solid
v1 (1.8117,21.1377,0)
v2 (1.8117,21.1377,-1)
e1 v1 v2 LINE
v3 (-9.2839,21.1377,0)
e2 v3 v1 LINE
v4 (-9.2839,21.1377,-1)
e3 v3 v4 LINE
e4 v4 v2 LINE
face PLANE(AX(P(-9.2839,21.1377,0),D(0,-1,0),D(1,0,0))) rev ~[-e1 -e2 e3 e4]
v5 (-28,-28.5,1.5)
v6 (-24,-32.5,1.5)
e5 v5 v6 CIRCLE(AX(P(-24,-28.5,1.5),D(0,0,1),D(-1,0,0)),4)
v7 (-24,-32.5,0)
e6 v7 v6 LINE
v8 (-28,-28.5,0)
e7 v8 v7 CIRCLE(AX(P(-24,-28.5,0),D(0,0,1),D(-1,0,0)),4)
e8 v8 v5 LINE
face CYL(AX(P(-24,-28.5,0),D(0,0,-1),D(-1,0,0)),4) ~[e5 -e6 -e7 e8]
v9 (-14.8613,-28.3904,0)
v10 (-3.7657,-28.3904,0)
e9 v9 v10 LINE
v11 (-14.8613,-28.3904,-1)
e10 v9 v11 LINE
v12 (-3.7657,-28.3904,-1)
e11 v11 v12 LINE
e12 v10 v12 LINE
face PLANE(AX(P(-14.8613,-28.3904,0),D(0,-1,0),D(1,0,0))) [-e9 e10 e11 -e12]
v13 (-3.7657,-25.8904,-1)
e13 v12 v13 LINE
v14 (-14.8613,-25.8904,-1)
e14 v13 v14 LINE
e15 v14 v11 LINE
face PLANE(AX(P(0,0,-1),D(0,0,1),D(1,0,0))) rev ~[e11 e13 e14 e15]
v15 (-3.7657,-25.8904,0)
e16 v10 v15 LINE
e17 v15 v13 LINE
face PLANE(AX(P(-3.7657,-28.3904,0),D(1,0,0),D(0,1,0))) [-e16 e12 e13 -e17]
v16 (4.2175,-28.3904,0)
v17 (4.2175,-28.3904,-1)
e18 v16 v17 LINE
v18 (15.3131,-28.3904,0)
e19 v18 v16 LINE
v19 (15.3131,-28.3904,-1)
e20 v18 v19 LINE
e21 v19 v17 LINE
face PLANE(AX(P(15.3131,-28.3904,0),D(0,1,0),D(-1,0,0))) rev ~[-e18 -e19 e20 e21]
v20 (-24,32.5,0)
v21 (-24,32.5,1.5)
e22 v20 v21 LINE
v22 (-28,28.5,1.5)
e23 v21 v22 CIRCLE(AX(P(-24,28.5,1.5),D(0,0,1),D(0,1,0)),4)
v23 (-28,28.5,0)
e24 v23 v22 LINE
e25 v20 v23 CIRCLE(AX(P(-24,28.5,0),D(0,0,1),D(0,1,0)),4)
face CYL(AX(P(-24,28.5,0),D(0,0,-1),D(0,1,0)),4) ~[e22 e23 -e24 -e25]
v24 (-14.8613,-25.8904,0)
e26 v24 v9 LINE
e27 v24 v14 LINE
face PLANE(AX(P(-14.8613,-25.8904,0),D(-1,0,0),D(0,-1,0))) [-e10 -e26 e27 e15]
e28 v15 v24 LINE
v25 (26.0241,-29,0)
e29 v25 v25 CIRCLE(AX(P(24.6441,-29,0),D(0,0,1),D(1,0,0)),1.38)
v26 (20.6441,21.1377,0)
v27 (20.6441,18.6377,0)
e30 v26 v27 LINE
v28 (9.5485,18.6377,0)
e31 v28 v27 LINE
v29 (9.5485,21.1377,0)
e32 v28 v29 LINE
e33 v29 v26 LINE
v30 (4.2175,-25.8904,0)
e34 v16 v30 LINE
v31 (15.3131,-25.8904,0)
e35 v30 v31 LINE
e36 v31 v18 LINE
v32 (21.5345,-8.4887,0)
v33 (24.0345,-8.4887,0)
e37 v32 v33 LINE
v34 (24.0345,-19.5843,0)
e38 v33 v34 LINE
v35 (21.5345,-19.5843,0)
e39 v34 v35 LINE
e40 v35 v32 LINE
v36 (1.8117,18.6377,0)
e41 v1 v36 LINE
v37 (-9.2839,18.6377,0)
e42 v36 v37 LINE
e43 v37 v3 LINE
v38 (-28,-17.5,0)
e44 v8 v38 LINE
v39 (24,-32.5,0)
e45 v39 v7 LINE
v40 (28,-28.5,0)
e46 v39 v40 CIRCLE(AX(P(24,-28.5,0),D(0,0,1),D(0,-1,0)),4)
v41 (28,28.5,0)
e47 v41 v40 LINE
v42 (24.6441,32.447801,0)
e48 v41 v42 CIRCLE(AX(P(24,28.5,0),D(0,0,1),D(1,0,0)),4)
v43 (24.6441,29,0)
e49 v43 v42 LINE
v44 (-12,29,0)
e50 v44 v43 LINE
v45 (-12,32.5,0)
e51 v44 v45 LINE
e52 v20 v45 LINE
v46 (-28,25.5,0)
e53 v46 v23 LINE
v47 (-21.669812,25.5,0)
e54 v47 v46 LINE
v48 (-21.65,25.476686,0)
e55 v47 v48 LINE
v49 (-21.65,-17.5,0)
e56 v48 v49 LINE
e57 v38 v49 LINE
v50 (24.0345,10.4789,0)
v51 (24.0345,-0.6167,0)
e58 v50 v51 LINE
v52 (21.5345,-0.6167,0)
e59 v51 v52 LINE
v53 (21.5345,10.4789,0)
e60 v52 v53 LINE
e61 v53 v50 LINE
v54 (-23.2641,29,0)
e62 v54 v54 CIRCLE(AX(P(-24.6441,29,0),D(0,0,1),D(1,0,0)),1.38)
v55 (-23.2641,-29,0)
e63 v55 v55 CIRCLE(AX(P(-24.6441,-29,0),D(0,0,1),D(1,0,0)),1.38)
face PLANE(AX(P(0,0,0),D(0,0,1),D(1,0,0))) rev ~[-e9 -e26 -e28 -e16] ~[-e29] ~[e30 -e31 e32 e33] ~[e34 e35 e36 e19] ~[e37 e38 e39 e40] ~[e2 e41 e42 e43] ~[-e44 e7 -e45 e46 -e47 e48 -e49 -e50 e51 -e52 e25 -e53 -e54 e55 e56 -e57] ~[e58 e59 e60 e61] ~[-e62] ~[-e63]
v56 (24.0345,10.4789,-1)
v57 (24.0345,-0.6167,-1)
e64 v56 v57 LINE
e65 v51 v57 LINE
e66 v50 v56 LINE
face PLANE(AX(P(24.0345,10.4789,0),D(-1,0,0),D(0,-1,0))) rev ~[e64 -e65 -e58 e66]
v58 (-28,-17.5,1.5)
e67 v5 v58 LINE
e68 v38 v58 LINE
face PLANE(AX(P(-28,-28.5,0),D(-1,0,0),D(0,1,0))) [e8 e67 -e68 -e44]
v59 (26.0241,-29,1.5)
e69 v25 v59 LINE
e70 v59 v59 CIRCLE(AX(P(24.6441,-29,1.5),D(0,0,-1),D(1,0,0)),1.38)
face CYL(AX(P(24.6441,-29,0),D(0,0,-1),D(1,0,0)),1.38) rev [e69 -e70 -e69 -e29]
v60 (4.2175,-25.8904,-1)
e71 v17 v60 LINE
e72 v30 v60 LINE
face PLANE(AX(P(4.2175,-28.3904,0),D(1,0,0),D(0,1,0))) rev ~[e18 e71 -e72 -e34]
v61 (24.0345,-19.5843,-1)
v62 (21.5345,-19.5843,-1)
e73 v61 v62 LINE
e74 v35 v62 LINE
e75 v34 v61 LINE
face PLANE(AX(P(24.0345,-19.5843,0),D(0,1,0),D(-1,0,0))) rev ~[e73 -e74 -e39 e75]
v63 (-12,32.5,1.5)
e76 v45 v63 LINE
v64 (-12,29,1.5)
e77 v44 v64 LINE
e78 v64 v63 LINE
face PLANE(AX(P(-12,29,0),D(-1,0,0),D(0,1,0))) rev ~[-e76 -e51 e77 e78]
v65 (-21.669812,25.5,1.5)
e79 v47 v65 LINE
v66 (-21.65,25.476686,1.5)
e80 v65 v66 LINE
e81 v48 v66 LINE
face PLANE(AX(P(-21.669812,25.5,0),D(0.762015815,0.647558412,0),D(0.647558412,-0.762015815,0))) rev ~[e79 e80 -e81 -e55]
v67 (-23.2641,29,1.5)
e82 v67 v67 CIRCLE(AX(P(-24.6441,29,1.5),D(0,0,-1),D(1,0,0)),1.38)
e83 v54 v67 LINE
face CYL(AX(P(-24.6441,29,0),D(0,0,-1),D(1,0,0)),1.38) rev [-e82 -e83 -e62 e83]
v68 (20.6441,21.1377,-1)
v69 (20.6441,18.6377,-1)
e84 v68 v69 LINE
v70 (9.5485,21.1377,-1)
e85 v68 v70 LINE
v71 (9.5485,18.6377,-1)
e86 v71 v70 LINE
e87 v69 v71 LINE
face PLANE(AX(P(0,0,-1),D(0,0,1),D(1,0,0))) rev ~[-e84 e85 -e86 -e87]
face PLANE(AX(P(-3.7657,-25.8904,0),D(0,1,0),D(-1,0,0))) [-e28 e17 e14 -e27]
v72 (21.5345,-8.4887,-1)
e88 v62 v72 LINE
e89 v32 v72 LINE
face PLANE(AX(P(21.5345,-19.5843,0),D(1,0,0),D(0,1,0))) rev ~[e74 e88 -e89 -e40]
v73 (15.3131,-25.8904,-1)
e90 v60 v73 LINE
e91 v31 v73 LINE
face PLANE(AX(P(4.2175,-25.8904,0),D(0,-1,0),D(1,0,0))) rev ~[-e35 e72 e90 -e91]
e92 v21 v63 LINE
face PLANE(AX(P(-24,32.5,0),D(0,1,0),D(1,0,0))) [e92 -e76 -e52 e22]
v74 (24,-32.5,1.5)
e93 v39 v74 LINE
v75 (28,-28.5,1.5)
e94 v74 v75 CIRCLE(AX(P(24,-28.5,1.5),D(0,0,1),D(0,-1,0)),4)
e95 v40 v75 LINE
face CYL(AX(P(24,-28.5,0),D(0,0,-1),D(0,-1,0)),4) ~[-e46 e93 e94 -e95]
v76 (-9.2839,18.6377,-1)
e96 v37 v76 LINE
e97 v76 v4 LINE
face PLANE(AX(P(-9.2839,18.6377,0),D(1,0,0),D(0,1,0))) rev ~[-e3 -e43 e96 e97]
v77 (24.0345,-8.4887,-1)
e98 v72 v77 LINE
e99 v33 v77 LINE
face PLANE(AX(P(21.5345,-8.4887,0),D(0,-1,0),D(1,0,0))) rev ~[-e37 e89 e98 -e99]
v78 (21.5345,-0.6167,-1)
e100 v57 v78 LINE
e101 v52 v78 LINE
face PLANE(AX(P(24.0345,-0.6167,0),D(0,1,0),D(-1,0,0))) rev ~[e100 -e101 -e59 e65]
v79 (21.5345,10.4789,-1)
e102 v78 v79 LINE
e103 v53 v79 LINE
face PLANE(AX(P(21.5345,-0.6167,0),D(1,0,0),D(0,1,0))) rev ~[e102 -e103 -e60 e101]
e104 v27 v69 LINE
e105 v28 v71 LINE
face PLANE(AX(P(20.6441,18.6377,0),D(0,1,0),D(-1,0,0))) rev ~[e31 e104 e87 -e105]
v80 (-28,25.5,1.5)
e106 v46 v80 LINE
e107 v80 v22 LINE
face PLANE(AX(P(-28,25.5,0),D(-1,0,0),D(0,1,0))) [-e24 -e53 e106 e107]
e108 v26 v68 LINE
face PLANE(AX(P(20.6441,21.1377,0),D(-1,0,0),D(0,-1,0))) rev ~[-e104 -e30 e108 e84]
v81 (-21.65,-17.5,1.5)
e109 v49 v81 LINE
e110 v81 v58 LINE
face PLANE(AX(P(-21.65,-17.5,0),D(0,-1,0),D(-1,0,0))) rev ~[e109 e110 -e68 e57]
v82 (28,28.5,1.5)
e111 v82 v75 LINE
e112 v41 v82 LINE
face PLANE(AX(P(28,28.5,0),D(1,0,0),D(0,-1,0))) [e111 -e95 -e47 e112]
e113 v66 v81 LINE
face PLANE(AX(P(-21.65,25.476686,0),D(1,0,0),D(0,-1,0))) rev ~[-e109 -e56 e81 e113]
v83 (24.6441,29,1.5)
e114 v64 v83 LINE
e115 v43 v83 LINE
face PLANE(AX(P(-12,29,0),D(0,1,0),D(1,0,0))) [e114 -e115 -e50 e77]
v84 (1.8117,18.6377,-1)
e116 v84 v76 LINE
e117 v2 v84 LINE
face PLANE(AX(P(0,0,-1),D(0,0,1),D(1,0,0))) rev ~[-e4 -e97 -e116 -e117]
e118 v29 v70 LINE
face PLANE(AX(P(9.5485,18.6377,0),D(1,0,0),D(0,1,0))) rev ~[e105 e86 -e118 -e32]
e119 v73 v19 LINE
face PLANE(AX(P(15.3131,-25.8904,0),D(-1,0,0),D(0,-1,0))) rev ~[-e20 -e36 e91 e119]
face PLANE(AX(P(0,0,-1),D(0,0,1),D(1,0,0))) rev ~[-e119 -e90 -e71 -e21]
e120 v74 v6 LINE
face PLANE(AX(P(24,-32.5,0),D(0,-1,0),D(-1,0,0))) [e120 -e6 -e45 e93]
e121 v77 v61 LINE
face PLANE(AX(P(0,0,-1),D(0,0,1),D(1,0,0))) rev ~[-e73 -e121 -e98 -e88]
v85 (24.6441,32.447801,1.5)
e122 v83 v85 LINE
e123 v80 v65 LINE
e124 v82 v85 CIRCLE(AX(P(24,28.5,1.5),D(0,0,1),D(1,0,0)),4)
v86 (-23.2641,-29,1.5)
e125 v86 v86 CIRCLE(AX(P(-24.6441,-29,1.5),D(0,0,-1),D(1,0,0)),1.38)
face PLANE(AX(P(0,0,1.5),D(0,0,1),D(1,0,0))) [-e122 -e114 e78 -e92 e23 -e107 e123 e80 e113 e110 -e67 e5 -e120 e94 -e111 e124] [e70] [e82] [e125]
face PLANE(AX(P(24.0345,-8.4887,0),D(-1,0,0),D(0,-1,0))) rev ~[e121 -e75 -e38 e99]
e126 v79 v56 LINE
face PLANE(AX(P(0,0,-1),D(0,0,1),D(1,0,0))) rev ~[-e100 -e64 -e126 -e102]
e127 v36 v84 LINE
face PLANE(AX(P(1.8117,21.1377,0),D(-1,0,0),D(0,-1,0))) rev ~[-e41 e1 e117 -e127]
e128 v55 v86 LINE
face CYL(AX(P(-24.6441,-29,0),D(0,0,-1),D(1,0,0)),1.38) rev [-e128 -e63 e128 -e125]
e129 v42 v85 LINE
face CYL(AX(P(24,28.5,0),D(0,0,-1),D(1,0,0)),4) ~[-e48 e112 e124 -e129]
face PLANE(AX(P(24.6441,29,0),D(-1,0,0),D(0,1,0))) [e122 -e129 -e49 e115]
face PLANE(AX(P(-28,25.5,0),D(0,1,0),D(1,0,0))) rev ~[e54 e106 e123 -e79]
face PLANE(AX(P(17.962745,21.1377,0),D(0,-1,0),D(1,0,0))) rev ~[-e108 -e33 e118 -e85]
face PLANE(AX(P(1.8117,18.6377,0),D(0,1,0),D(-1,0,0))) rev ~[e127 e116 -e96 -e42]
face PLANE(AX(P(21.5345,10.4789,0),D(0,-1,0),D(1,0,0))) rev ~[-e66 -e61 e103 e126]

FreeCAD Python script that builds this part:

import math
import FreeCAD as App
import Part
import Sketcher
Q = App.Units.Quantity

doc = App.newDocument("Part")
body = doc.addObject("PartDesign::Body", "Body")

# Sketch on XY plane
sketch1 = body.newObject("Sketcher::SketchObject", "Sketch")
sketch1.AttachmentSupport = (doc.getObject("XY_Plane"), [""])
sketch1.MapMode = "FlatFace"
sketch1.addGeometry(Part.LineSegment(App.Vector(-12, 32.5, 0), App.Vector(-24, 32.5, 0)), False)
sketch1.addGeometry(Part.ArcOfCircle(Part.Circle(App.Vector(-24, 28.5, 0), App.Vector(0, 0, 1), 4), math.radians(90), math.radians(180)), False)
sketch1.addGeometry(Part.LineSegment(App.Vector(-28, 28.5, 0), App.Vector(-28, 25.5, 0)), False)
sketch1.addGeometry(Part.LineSegment(App.Vector(-28, 25.5, 0), App.Vector(-21.67, 25.5, 0)), False)
sketch1.addGeometry(Part.LineSegment(App.Vector(-21.67, 25.5, 0), App.Vector(-21.65, 25.477, 0)), False)
sketch1.addGeometry(Part.LineSegment(App.Vector(-21.65, 25.477, 0), App.Vector(-21.65, -17.5, 0)), False)
sketch1.addGeometry(Part.LineSegment(App.Vector(-21.65, -17.5, 0), App.Vector(-28, -17.5, 0)), False)
sketch1.addGeometry(Part.LineSegment(App.Vector(-28, -17.5, 0), App.Vector(-28, -28.5, 0)), False)
sketch1.addGeometry(Part.ArcOfCircle(Part.Circle(App.Vector(-24, -28.5, 0), App.Vector(0, 0, 1), 4), math.radians(180), math.radians(270)), False)
sketch1.addGeometry(Part.LineSegment(App.Vector(-24, -32.5, 0), App.Vector(24, -32.5, 0)), False)
sketch1.addGeometry(Part.ArcOfCircle(Part.Circle(App.Vector(24, -28.5, 0), App.Vector(0, 0, 1), 4), math.radians(-90), math.radians(0)), False)
sketch1.addGeometry(Part.LineSegment(App.Vector(28, -28.5, 0), App.Vector(28, 28.5, 0)), False)
sketch1.addGeometry(Part.ArcOfCircle(Part.Circle(App.Vector(24, 28.5, 0), App.Vector(0, 0, 1), 4), math.radians(0), math.radians(81)), False)
sketch1.addGeometry(Part.LineSegment(App.Vector(24.644, 32.448, 0), App.Vector(24.644, 29, 0)), False)
sketch1.addGeometry(Part.LineSegment(App.Vector(24.644, 29, 0), App.Vector(-12, 29, 0)), False)
sketch1.addGeometry(Part.LineSegment(App.Vector(-12, 29, 0), App.Vector(-12, 32.5, 0)), False)
sketch1.addGeometry(Part.Circle(App.Vector(-24.644, 29, 0), App.Vector(0, 0, 1), 1.38), False)
sketch1.addGeometry(Part.Circle(App.Vector(24.644, -29, 0), App.Vector(0, 0, 1), 1.38), False)
sketch1.addGeometry(Part.Circle(App.Vector(-24.644, -29, 0), App.Vector(0, 0, 1), 1.38), False)
sketch1.addConstraint(Sketcher.Constraint("Tangent", 0, 2, 1, 1))
sketch1.addConstraint(Sketcher.Constraint("Tangent", 1, 2, 2, 1))
sketch1.addConstraint(Sketcher.Constraint("Coincident", 2, 2, 3, 1))
sketch1.addConstraint(Sketcher.Constraint("Coincident", 3, 2, 4, 1))
sketch1.addConstraint(Sketcher.Constraint("Coincident", 4, 2, 5, 1))
sketch1.addConstraint(Sketcher.Constraint("Coincident", 5, 2, 6, 1))
sketch1.addConstraint(Sketcher.Constraint("Coincident", 6, 2, 7, 1))
sketch1.addConstraint(Sketcher.Constraint("Tangent", 7, 2, 8, 1))
sketch1.addConstraint(Sketcher.Constraint("Tangent", 8, 2, 9, 1))
sketch1.addConstraint(Sketcher.Constraint("Tangent", 9, 2, 10, 1))
sketch1.addConstraint(Sketcher.Constraint("Tangent", 10, 2, 11, 1))
sketch1.addConstraint(Sketcher.Constraint("Tangent", 11, 2, 12, 1))
sketch1.addConstraint(Sketcher.Constraint("Coincident", 12, 2, 13, 1))
sketch1.addConstraint(Sketcher.Constraint("Coincident", 13, 2, 14, 1))
sketch1.addConstraint(Sketcher.Constraint("Coincident", 14, 2, 15, 1))
sketch1.addConstraint(Sketcher.Constraint("Coincident", 15, 2, 0, 1))
sketch1.addConstraint(Sketcher.Constraint("Horizontal", 0))
sketch1.addConstraint(Sketcher.Constraint("Vertical", 2))
sketch1.addConstraint(Sketcher.Constraint("Horizontal", 3))
sketch1.addConstraint(Sketcher.Constraint("Vertical", 5))
sketch1.addConstraint(Sketcher.Constraint("Horizontal", 6))
sketch1.addConstraint(Sketcher.Constraint("Vertical", 7))
sketch1.addConstraint(Sketcher.Constraint("Horizontal", 9))
sketch1.addConstraint(Sketcher.Constraint("Vertical", 11))
sketch1.addConstraint(Sketcher.Constraint("Vertical", 13))
sketch1.addConstraint(Sketcher.Constraint("Horizontal", 14))
sketch1.addConstraint(Sketcher.Constraint("Vertical", 15))
sketch1.addConstraint(Sketcher.Constraint("Equal", 1, 8))
sketch1.addConstraint(Sketcher.Constraint("Equal", 8, 10))
sketch1.addConstraint(Sketcher.Constraint("Equal", 10, 12))
sketch1.addConstraint(Sketcher.Constraint("Equal", 16, 17))
sketch1.addConstraint(Sketcher.Constraint("Equal", 17, 18))
sketch1.addConstraint(Sketcher.Constraint("Symmetric", 1, 3, 10, 3, -1, 1))
sketch1.addConstraint(Sketcher.Constraint("Symmetric", 8, 3, 12, 3, -1, 1))
sketch1.addConstraint(Sketcher.Constraint("Symmetric", 16, 3, 17, 3, -1, 1))
sketch1.addConstraint(Sketcher.Constraint("Symmetric", 17, 3, 18, 3, -2))
sketch1.addConstraint(Sketcher.Constraint("Horizontal", 16, 3, 13, 2))
sketch1.addConstraint(Sketcher.Constraint("Vertical", 17, 3, 12, 2))
sketch1.addConstraint(Sketcher.Constraint("Radius", 1, Q("4 mm")))
sketch1.addConstraint(Sketcher.Constraint("Diameter", 16, Q("2.76 mm")))
sketch1.addConstraint(Sketcher.Constraint("DistanceY", 15, 1, 15, 2, Q("3.5 mm")))
sketch1.addConstraint(Sketcher.Constraint("DistanceY", 17, 3, 16, 3, Q("58 mm")))
sketch1.addConstraint(Sketcher.Constraint("DistanceY", 5, 2, 3, 2, Q("43 mm")))
sketch1.addConstraint(Sketcher.Constraint("DistanceX", 6, 2, 6, 1, Q("6.35 mm")))
sketch1.addConstraint(Sketcher.Constraint("DistanceY", 2, 2, 16, 3, Q("3.5 mm")))
sketch1.addConstraint(Sketcher.Constraint("DistanceX", 0, 2, 0, 1, Q("12 mm")))
sketch1.addConstraint(Sketcher.Constraint("DistanceX", 9, 1, 9, 2, Q("48 mm")))
sketch1.addConstraint(Sketcher.Constraint("DistanceX", 1, 2, 16, 3, Q("3.356 mm")))
sketch1.addConstraint(Sketcher.Constraint("DistanceX", 3, 1, 3, 2, Q("6.3302 mm")))
sketch1.addConstraint(Sketcher.Constraint("DistanceY", 5, 2, 5, 1, Q("42.9767 mm")))
pad1 = body.newObject("PartDesign::Pad", "Pad")
pad1.Profile = sketch1
pad1.Length = 1.5

# Sketch on XY plane
sketch2 = body.newObject("Sketcher::SketchObject", "Sketch001")
sketch2.AttachmentSupport = (doc.getObject("XY_Plane"), [""])
sketch2.MapMode = "FlatFace"
sketch2.addGeometry(Part.LineSegment(App.Vector(20.6, 21.1, 0), App.Vector(9.5, 21.1, 0)), False)
sketch2.addGeometry(Part.LineSegment(App.Vector(9.5, 21.1, 0), App.Vector(9.5, 18.6, 0)), False)
sketch2.addGeometry(Part.LineSegment(App.Vector(9.5, 18.6, 0), App.Vector(20.6, 18.6, 0)), False)
sketch2.addGeometry(Part.LineSegment(App.Vector(20.6, 18.6, 0), App.Vector(20.6, 21.1, 0)), False)
sketch2.addGeometry(Part.LineSegment(App.Vector(1.8, 21.1, 0), App.Vector(-9.3, 21.1, 0)), False)
sketch2.addGeometry(Part.LineSegment(App.Vector(-9.3, 21.1, 0), App.Vector(-9.3, 18.6, 0)), False)
sketch2.addGeometry(Part.LineSegment(App.Vector(-9.3, 18.6, 0), App.Vector(1.8, 18.6, 0)), False)
sketch2.addGeometry(Part.LineSegment(App.Vector(1.8, 18.6, 0), App.Vector(1.8, 21.1, 0)), False)
sketch2.addGeometry(Part.LineSegment(App.Vector(24, 10.5, 0), App.Vector(21.5, 10.5, 0)), False)
sketch2.addGeometry(Part.LineSegment(App.Vector(21.5, 10.5, 0), App.Vector(21.5, -0.6, 0)), False)
sketch2.addGeometry(Part.LineSegment(App.Vector(21.5, -0.6, 0), App.Vector(24, -0.6, 0)), False)
sketch2.addGeometry(Part.LineSegment(App.Vector(24, -0.6, 0), App.Vector(24, 10.5, 0)), False)
sketch2.addGeometry(Part.LineSegment(App.Vector(24, -8.5, 0), App.Vector(21.5, -8.5, 0)), False)
sketch2.addGeometry(Part.LineSegment(App.Vector(21.5, -8.5, 0), App.Vector(21.5, -19.6, 0)), False)
sketch2.addGeometry(Part.LineSegment(App.Vector(21.5, -19.6, 0), App.Vector(24, -19.6, 0)), False)
sketch2.addGeometry(Part.LineSegment(App.Vector(24, -19.6, 0), App.Vector(24, -8.5, 0)), False)
sketch2.addGeometry(Part.LineSegment(App.Vector(-14.9, -25.9, 0), App.Vector(-14.9, -28.4, 0)), False)
sketch2.addGeometry(Part.LineSegment(App.Vector(-14.9, -28.4, 0), App.Vector(-3.8, -28.4, 0)), False)
sketch2.addGeometry(Part.LineSegment(App.Vector(-3.8, -28.4, 0), App.Vector(-3.8, -25.9, 0)), False)
sketch2.addGeometry(Part.LineSegment(App.Vector(-3.8, -25.9, 0), App.Vector(-14.9, -25.9, 0)), False)
sketch2.addGeometry(Part.LineSegment(App.Vector(15.3, -25.9, 0), App.Vector(4.2, -25.9, 0)), False)
sketch2.addGeometry(Part.LineSegment(App.Vector(4.2, -25.9, 0), App.Vector(4.2, -28.4, 0)), False)
sketch2.addGeometry(Part.LineSegment(App.Vector(4.2, -28.4, 0), App.Vector(15.3, -28.4, 0)), False)
sketch2.addGeometry(Part.LineSegment(App.Vector(15.3, -28.4, 0), App.Vector(15.3, -25.9, 0)), False)
sketch2.addConstraint(Sketcher.Constraint("Coincident", 0, 2, 1, 1))
sketch2.addConstraint(Sketcher.Constraint("Coincident", 1, 2, 2, 1))
sketch2.addConstraint(Sketcher.Constraint("Coincident", 2, 2, 3, 1))
sketch2.addConstraint(Sketcher.Constraint("Coincident", 3, 2, 0, 1))
sketch2.addConstraint(Sketcher.Constraint("Coincident", 4, 2, 5, 1))
sketch2.addConstraint(Sketcher.Constraint("Coincident", 5, 2, 6, 1))
sketch2.addConstraint(Sketcher.Constraint("Coincident", 6, 2, 7, 1))
sketch2.addConstraint(Sketcher.Constraint("Coincident", 7, 2, 4, 1))
sketch2.addConstraint(Sketcher.Constraint("Coincident", 8, 2, 9, 1))
sketch2.addConstraint(Sketcher.Constraint("Coincident", 9, 2, 10, 1))
sketch2.addConstraint(Sketcher.Constraint("Coincident", 10, 2, 11, 1))
sketch2.addConstraint(Sketcher.Constraint("Coincident", 11, 2, 8, 1))
sketch2.addConstraint(Sketcher.Constraint("Coincident", 12, 2, 13, 1))
sketch2.addConstraint(Sketcher.Constraint("Coincident", 13, 2, 14, 1))
sketch2.addConstraint(Sketcher.Constraint("Coincident", 14, 2, 15, 1))
sketch2.addConstraint(Sketcher.Constraint("Coincident", 15, 2, 12, 1))
sketch2.addConstraint(Sketcher.Constraint("Coincident", 16, 2, 17, 1))
sketch2.addConstraint(Sketcher.Constraint("Coincident", 17, 2, 18, 1))
sketch2.addConstraint(Sketcher.Constraint("Coincident", 18, 2, 19, 1))
sketch2.addConstraint(Sketcher.Constraint("Coincident", 19, 2, 16, 1))
sketch2.addConstraint(Sketcher.Constraint("Coincident", 20, 2, 21, 1))
sketch2.addConstraint(Sketcher.Constraint("Coincident", 21, 2, 22, 1))
sketch2.addConstraint(Sketcher.Constraint("Coincident", 22, 2, 23, 1))
sketch2.addConstraint(Sketcher.Constraint("Coincident", 23, 2, 20, 1))
sketch2.addConstraint(Sketcher.Constraint("Horizontal", 0))
sketch2.addConstraint(Sketcher.Constraint("Vertical", 1))
sketch2.addConstraint(Sketcher.Constraint("Horizontal", 2))
sketch2.addConstraint(Sketcher.Constraint("Vertical", 3))
sketch2.addConstraint(Sketcher.Constraint("Horizontal", 4))
sketch2.addConstraint(Sketcher.Constraint("Vertical", 5))
sketch2.addConstraint(Sketcher.Constraint("Horizontal", 6))
sketch2.addConstraint(Sketcher.Constraint("Vertical", 7))
sketch2.addConstraint(Sketcher.Constraint("Horizontal", 8))
sketch2.addConstraint(Sketcher.Constraint("Vertical", 9))
sketch2.addConstraint(Sketcher.Constraint("Horizontal", 10))
sketch2.addConstraint(Sketcher.Constraint("Vertical", 11))
sketch2.addConstraint(Sketcher.Constraint("Horizontal", 12))
sketch2.addConstraint(Sketcher.Constraint("Vertical", 13))
sketch2.addConstraint(Sketcher.Constraint("Horizontal", 14))
sketch2.addConstraint(Sketcher.Constraint("Vertical", 15))
sketch2.addConstraint(Sketcher.Constraint("Vertical", 16))
sketch2.addConstraint(Sketcher.Constraint("Horizontal", 17))
sketch2.addConstraint(Sketcher.Constraint("Vertical", 18))
sketch2.addConstraint(Sketcher.Constraint("Horizontal", 19))
sketch2.addConstraint(Sketcher.Constraint("Horizontal", 20))
sketch2.addConstraint(Sketcher.Constraint("Vertical", 21))
sketch2.addConstraint(Sketcher.Constraint("Horizontal", 22))
sketch2.addConstraint(Sketcher.Constraint("Vertical", 23))
sketch2.addConstraint(Sketcher.Constraint("Horizontal", 3, 2, 4, 2))
sketch2.addConstraint(Sketcher.Constraint("Horizontal", 2, 2, 5, 2))
sketch2.addConstraint(Sketcher.Constraint("Horizontal", 19, 2, 20, 2))
sketch2.addConstraint(Sketcher.Constraint("Horizontal", 17, 2, 21, 2))
sketch2.addConstraint(Sketcher.Constraint("Vertical", 9, 2, 12, 2))
sketch2.addConstraint(Sketcher.Constraint("Vertical", 11, 2, 14, 2))
sketch2.addConstraint(Sketcher.Constraint("Equal", 2, 4))
sketch2.addConstraint(Sketcher.Constraint("Equal", 6, 17))
sketch2.addConstraint(Sketcher.Constraint("Equal", 19, 20))
sketch2.addConstraint(Sketcher.Constraint("Equal", 14, 1))
sketch2.addConstraint(Sketcher.Constraint("Equal", 22, 9))
sketch2.addConstraint(Sketcher.Constraint("Equal", 11, 13))
sketch2.addConstraint(Sketcher.Constraint("Equal", 7, 16))
sketch2.addConstraint(Sketcher.Constraint("DistanceX", 8, 2, 8, 1, Q("2.5 mm")))
sketch2.addConstraint(Sketcher.Constraint("DistanceY", 12, 2, 9, 2, Q("7.872 mm")))
sketch2.addConstraint(Sketcher.Constraint("DistanceX", 6, 2, 1, 2, Q("7.7368 mm")))
sketch2.addConstraint(Sketcher.Constraint("DistanceX", 18, 2, 20, 2, Q("7.9832 mm")))
sketch2.addConstraint(Sketcher.Constraint("DistanceX", 0, 2, 0, 1, Q("11.0956 mm")))
sketch2.addConstraint(Sketcher.Constraint("DistanceX", -1, 1, 2, 2, Q("20.644 mm")))
sketch2.addConstraint(Sketcher.Constraint("DistanceY", -1, 1, 8, 2, Q("10.479 mm")))
sketch2.addConstraint(Sketcher.Constraint("DistanceX", -1, 1, 22, 2, Q("15.313 mm")))
sketch2.addConstraint(Sketcher.Constraint("DistanceX", 1, 2, 8, 2, Q("11.986 mm")))
sketch2.addConstraint(Sketcher.Constraint("DistanceY", 16, 2, 13, 2, Q("8.806 mm")))
sketch2.addConstraint(Sketcher.Constraint("DistanceY", -1, 1, 0, 2, Q("21.1377 mm")))
pad2 = body.newObject("PartDesign::Pad", "Pad001")
pad2.Profile = sketch2
pad2.Length = 1
pad2.Reversed = True

doc.recompute()
